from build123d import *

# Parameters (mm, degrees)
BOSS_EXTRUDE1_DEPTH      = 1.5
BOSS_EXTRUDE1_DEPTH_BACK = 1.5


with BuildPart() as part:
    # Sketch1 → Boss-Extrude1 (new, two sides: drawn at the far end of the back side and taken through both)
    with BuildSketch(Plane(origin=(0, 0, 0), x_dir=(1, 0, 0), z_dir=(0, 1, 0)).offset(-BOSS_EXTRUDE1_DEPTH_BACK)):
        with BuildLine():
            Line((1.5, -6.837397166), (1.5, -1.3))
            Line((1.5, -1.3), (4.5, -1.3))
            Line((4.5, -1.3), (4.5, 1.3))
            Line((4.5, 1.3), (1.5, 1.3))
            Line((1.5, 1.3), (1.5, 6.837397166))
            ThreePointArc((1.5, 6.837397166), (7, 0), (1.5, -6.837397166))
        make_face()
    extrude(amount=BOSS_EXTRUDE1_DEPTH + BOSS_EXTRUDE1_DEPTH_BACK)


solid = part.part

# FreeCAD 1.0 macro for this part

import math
import FreeCAD as App
import Part
import Sketcher

V = App.Vector

doc = App.newDocument("Part")
body = doc.addObject("PartDesign::Body", "Body")

sketch1 = body.newObject("Sketcher::SketchObject", "Sketch")
sketch1.AttachmentSupport = (doc.getObject("XZ_Plane"), [""])
sketch1.MapMode = "FlatFace"
sketch1.addGeometry([
    Part.LineSegment(V(1.5, 1.3, 0), V(1.5, 6.837397, 0)),
    Part.ArcOfCircle(Part.Circle(V(0, 0, 0), V(0, 0, 1), 7), math.radians(-77.626375), math.radians(77.626375)),
    Part.LineSegment(V(1.5, -6.837397, 0), V(1.5, -1.3, 0)),
    Part.LineSegment(V(1.5, -1.3, 0), V(4.5, -1.3, 0)),
    Part.LineSegment(V(4.5, -1.3, 0), V(4.5, 1.3, 0)),
    Part.LineSegment(V(4.5, 1.3, 0), V(1.5, 1.3, 0)),
], False)
sketch1.addConstraint([
    Sketcher.Constraint("Coincident", 0, 2, 1, 2),
    Sketcher.Constraint("Coincident", 1, 1, 2, 1),
    Sketcher.Constraint("Coincident", 2, 2, 3, 1),
    Sketcher.Constraint("Coincident", 3, 2, 4, 1),
    Sketcher.Constraint("Coincident", 4, 2, 5, 1),
    Sketcher.Constraint("Coincident", 5, 2, 0, 1),
    Sketcher.Constraint("Vertical", 0),
    Sketcher.Constraint("Vertical", 2),
    Sketcher.Constraint("Horizontal", 3),
    Sketcher.Constraint("Vertical", 4),
    Sketcher.Constraint("Horizontal", 5),
    Sketcher.Constraint("Coincident", 1, 3, -1, 1),
    Sketcher.Constraint("Symmetric", 2, 2, 5, 2, -1),
    Sketcher.Constraint("Radius", 1, 7.0),
    Sketcher.Constraint("DistanceX", 3, 1, 3, 2, 3.0),
    Sketcher.Constraint("DistanceY", 4, 1, 4, 2, 2.6),
    Sketcher.Constraint("DistanceX", -1, 1, 0, 2, 1.5),
])
pad1 = body.newObject("PartDesign::Pad", "Pad")
pad1.Profile = sketch1
pad1.Type = "TwoLengths"
pad1.Length = 1.5
pad1.Length2 = 1.5
pad1.Reversed = True

doc.recompute()
